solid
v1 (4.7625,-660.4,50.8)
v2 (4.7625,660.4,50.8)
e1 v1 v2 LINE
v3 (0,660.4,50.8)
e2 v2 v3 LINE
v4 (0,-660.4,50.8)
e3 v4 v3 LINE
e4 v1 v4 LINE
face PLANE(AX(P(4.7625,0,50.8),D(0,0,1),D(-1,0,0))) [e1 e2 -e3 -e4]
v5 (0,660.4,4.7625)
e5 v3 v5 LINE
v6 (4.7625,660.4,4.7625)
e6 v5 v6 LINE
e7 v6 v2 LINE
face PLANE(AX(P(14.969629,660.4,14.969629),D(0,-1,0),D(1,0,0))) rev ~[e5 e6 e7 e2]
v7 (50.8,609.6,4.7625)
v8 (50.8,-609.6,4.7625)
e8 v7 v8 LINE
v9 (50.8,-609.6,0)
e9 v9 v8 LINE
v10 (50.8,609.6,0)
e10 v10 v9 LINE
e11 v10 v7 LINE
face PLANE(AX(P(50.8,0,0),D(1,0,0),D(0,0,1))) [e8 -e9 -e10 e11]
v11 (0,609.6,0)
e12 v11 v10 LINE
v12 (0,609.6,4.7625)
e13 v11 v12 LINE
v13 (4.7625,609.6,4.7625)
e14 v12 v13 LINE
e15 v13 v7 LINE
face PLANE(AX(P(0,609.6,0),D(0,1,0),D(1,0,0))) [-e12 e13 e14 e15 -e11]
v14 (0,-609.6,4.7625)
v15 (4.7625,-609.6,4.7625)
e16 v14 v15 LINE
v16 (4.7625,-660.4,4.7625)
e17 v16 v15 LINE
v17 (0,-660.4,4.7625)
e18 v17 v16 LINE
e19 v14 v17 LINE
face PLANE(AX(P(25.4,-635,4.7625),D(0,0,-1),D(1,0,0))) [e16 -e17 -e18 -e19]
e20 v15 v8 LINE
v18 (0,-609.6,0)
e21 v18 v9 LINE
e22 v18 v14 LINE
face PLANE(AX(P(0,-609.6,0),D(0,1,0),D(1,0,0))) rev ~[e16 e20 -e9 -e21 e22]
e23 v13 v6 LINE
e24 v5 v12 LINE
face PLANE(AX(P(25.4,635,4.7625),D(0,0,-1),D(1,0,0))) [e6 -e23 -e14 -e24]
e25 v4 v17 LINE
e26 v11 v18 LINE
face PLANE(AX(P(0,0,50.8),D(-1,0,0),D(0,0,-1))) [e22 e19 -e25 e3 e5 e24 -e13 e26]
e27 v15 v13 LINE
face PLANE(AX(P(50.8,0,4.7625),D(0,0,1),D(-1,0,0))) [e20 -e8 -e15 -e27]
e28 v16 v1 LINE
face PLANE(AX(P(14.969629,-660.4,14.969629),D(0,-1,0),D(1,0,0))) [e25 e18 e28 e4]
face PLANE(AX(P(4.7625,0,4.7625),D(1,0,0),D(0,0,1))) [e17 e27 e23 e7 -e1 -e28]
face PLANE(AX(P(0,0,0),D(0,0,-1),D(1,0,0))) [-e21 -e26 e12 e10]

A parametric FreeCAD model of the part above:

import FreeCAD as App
import Part
import Sketcher

V = App.Vector
Q = App.Units.Quantity

doc = App.newDocument("Part")
body = doc.addObject("PartDesign::Body", "Body")

sketch1 = body.newObject("Sketcher::SketchObject", "Sketch")
sketch1.AttachmentSupport = (doc.getObject("XZ_Plane"), [""])
sketch1.MapMode = "FlatFace"
sketch1.addGeometry([
    Part.LineSegment(V(0, 50.8, 0), V(0, 0, 0)),
    Part.LineSegment(V(0, 0, 0), V(50.8, 0, 0)),
    Part.LineSegment(V(50.8, 0, 0), V(50.8, 4.8, 0)),
    Part.LineSegment(V(50.8, 4.8, 0), V(4.8, 4.8, 0)),
    Part.LineSegment(V(4.8, 4.8, 0), V(4.8, 50.8, 0)),
    Part.LineSegment(V(4.8, 50.8, 0), V(0, 50.8, 0)),
], False)
sketch1.addConstraint([
    Sketcher.Constraint("Coincident", 0, 2, 1, 1),
    Sketcher.Constraint("Coincident", 1, 2, 2, 1),
    Sketcher.Constraint("Coincident", 2, 2, 3, 1),
    Sketcher.Constraint("Coincident", 3, 2, 4, 1),
    Sketcher.Constraint("Coincident", 4, 2, 5, 1),
    Sketcher.Constraint("Coincident", 5, 2, 0, 1),
    Sketcher.Constraint("Vertical", 0),
    Sketcher.Constraint("Horizontal", 1),
    Sketcher.Constraint("Vertical", 2),
    Sketcher.Constraint("Horizontal", 3),
    Sketcher.Constraint("Vertical", 4),
    Sketcher.Constraint("Horizontal", 5),
    Sketcher.Constraint("Coincident", 0, 2, -1, 1),
    Sketcher.Constraint("Equal", 1, 0),
    Sketcher.Constraint("Equal", 5, 2),
    Sketcher.Constraint("DistanceX", 1, 1, 1, 2, Q("2 in")),
    Sketcher.Constraint("DistanceX", 3, 2, 3, 1, Q("1.8125 in")),
])
pad1 = body.newObject("PartDesign::Pad", "Pad")
pad1.Profile = sketch1
pad1.Length = Q("52 in")
pad1.Midplane = True

sketch2 = body.newObject("Sketcher::SketchObject", "Sketch001")
sketch2.AttachmentSupport = (doc.getObject("XY_Plane"), [""])
sketch2.MapMode = "FlatFace"
sketch2.addGeometry([
    Part.LineSegment(V(0, -660, 0), V(0, -610, 0)),
    Part.LineSegment(V(0, -610, 0), V(51, -610, 0)),
    Part.LineSegment(V(51, -610, 0), V(51, -660, 0)),
    Part.LineSegment(V(51, -660, 0), V(0, -660, 0)),
    Part.LineSegment(V(0, 610, 0), V(0, 660, 0)),
    Part.LineSegment(V(0, 660, 0), V(51, 660, 0)),
    Part.LineSegment(V(51, 660, 0), V(51, 610, 0)),
    Part.LineSegment(V(51, 610, 0), V(0, 610, 0)),
], False)
sketch2.addConstraint([
    Sketcher.Constraint("Coincident", 0, 2, 1, 1),
    Sketcher.Constraint("Coincident", 1, 2, 2, 1),
    Sketcher.Constraint("Coincident", 2, 2, 3, 1),
    Sketcher.Constraint("Coincident", 3, 2, 0, 1),
    Sketcher.Constraint("Coincident", 4, 2, 5, 1),
    Sketcher.Constraint("Coincident", 5, 2, 6, 1),
    Sketcher.Constraint("Coincident", 6, 2, 7, 1),
    Sketcher.Constraint("Coincident", 7, 2, 4, 1),
    Sketcher.Constraint("Vertical", 0),
    Sketcher.Constraint("Horizontal", 1),
    Sketcher.Constraint("Vertical", 2),
    Sketcher.Constraint("Horizontal", 3),
    Sketcher.Constraint("Vertical", 4),
    Sketcher.Constraint("Horizontal", 5),
    Sketcher.Constraint("Vertical", 6),
    Sketcher.Constraint("Horizontal", 7),
    Sketcher.Constraint("Symmetric", 3, 2, 4, 2, -1, 1),
    Sketcher.Constraint("Symmetric", 1, 2, 6, 2, -1),
    Sketcher.Constraint("PointOnObject", 0, 2, -2),
    Sketcher.Constraint("Equal", 7, 0),
    Sketcher.Constraint("DistanceX", 1, 1, 1, 2, Q("2 in")),
    Sketcher.Constraint("DistanceY", 0, 2, -1, 1, Q("24 in")),
])
pocket1 = body.newObject("PartDesign::Pocket", "Pocket")
pocket1.Profile = sketch2
pocket1.Length = Q("0.1875 in")
pocket1.Reversed = True

doc.recompute()
